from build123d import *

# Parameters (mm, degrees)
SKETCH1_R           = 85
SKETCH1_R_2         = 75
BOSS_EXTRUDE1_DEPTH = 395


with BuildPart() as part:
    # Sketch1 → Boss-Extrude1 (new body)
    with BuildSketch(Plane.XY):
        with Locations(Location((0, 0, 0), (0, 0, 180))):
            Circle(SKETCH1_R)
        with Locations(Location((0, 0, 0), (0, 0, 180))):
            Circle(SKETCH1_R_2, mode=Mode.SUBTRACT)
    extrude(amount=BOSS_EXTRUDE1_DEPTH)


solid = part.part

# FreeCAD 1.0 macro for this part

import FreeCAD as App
import Part
import Sketcher
Q = App.Units.Quantity

doc = App.newDocument("Part")
body = doc.addObject("PartDesign::Body", "Body")

# Sketch on XY plane
sketch1 = body.newObject("Sketcher::SketchObject", "Sketch")
sketch1.AttachmentSupport = (doc.getObject("XY_Plane"), [""])
sketch1.MapMode = "FlatFace"
sketch1.addGeometry([
    Part.Circle(App.Vector(0, 0, 0), App.Vector(0, 0, 1), 85),
    Part.Circle(App.Vector(0, 0, 0), App.Vector(0, 0, 1), 75),
], False)
sketch1.addConstraint([
    Sketcher.Constraint("Coincident", 0, 3, -1, 1),
    Sketcher.Constraint("Coincident", 1, 3, -1, 1),
    Sketcher.Constraint("Diameter", 0, Q("170 mm")),
    Sketcher.Constraint("Diameter", 1, Q("150 mm")),
])
pad1 = body.newObject("PartDesign::Pad", "Pad")
pad1.Profile = sketch1
pad1.Length = 395

doc.recompute()
